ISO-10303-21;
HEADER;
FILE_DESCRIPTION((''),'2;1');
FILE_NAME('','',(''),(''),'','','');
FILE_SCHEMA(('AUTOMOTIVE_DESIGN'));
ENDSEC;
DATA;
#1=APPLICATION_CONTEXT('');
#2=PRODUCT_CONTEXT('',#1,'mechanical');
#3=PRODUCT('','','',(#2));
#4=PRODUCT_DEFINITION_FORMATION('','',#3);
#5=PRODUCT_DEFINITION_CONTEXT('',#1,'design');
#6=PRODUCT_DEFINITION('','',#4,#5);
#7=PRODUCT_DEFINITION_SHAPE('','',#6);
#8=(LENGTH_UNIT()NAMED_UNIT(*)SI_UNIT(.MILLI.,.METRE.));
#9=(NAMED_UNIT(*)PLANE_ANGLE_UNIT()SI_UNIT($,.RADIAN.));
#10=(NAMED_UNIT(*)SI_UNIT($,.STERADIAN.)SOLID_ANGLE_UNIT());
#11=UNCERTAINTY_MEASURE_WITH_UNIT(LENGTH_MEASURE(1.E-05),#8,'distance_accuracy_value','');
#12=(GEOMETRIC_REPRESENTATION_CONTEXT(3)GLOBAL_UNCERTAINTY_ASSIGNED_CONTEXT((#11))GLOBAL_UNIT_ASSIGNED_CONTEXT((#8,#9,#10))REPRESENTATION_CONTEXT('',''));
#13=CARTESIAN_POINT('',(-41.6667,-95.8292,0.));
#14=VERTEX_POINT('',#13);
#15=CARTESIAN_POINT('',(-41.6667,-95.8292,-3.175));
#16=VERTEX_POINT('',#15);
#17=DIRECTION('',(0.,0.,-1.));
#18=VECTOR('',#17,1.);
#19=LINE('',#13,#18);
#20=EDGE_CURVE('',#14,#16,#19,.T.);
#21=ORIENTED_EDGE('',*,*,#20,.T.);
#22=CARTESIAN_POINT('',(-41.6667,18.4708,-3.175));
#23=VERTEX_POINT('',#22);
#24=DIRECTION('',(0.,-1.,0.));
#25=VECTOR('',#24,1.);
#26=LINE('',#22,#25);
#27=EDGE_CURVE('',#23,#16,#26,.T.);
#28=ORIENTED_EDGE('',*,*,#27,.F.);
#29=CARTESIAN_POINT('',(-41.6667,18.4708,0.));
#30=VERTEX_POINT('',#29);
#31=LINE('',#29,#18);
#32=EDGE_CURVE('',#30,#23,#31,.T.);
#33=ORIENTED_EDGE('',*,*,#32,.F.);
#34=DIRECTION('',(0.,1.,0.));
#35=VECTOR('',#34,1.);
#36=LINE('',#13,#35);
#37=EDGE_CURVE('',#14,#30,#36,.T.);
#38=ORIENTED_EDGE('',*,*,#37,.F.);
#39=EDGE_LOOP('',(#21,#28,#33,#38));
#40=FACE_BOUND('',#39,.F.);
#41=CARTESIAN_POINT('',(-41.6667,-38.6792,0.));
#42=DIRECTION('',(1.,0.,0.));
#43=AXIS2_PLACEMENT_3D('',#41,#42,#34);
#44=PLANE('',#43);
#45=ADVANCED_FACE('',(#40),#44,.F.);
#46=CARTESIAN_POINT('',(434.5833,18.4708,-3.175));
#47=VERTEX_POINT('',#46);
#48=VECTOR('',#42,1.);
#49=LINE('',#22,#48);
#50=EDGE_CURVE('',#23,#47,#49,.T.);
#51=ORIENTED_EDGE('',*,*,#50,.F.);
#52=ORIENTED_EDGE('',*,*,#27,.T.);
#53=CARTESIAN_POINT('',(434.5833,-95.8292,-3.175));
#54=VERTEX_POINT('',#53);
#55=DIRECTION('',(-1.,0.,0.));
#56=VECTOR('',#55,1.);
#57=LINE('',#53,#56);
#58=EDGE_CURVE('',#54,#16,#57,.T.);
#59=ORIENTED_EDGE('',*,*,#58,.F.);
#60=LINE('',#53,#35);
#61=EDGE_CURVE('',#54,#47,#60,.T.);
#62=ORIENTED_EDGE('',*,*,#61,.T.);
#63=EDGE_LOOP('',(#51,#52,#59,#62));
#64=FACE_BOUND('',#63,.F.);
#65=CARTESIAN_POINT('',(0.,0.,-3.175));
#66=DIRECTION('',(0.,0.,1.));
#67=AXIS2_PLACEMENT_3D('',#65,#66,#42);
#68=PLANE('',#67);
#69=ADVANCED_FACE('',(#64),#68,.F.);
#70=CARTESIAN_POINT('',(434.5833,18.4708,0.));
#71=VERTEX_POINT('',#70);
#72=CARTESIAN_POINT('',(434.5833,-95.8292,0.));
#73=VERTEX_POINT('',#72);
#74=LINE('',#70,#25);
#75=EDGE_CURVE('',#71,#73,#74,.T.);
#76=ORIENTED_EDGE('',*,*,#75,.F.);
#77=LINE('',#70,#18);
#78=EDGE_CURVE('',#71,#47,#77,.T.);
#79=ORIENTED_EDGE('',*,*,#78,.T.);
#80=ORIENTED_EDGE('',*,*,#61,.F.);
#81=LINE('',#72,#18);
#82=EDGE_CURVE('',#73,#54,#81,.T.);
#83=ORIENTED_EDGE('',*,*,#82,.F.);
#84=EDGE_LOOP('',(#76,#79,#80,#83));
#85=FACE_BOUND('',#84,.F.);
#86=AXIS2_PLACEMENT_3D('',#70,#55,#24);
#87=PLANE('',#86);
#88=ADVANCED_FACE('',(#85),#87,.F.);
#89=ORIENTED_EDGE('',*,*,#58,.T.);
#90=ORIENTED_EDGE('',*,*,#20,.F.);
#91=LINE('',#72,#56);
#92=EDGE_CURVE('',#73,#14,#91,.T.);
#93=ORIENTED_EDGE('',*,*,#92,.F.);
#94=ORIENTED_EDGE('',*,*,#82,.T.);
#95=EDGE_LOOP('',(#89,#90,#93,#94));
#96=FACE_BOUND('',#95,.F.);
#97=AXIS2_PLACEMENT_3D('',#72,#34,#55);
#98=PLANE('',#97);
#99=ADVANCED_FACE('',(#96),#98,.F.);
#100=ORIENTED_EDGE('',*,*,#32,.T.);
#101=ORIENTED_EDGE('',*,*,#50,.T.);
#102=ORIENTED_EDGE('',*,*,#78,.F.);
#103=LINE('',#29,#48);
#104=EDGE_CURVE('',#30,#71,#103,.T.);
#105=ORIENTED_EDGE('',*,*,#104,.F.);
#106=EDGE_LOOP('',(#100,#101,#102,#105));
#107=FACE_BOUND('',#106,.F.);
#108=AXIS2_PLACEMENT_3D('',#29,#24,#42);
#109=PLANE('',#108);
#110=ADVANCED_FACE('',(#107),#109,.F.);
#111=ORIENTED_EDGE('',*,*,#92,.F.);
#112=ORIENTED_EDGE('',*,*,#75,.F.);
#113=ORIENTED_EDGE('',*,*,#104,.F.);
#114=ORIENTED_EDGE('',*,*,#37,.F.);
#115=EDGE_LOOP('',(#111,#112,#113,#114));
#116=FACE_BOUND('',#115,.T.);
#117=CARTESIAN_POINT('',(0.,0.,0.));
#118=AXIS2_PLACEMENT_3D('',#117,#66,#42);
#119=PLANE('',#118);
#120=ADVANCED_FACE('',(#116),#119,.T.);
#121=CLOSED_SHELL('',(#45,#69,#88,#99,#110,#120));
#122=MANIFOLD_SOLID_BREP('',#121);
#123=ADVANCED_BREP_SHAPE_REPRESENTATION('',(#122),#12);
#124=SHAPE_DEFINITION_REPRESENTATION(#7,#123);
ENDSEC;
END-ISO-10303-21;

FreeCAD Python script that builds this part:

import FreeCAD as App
import Part
import Sketcher
Q = App.Units.Quantity

doc = App.newDocument("Part")
body = doc.addObject("PartDesign::Body", "Body")

# Sketch on XY plane
sketch1 = body.newObject("Sketcher::SketchObject", "Sketch")
sketch1.AttachmentSupport = (doc.getObject("XY_Plane"), [""])
sketch1.MapMode = "FlatFace"
sketch1.addGeometry(Part.LineSegment(App.Vector(434.5833, 18.4708, 0), App.Vector(-41.6667, 18.4708, 0)), False)
sketch1.addGeometry(Part.LineSegment(App.Vector(-41.6667, 18.4708, 0), App.Vector(-41.6667, -95.8292, 0)), False)
sketch1.addGeometry(Part.LineSegment(App.Vector(-41.6667, -95.8292, 0), App.Vector(434.5833, -95.8292, 0)), False)
sketch1.addGeometry(Part.LineSegment(App.Vector(434.5833, -95.8292, 0), App.Vector(434.5833, 18.4708, 0)), False)
sketch1.addConstraint(Sketcher.Constraint("Coincident", 0, 2, 1, 1))
sketch1.addConstraint(Sketcher.Constraint("Coincident", 1, 2, 2, 1))
sketch1.addConstraint(Sketcher.Constraint("Coincident", 2, 2, 3, 1))
sketch1.addConstraint(Sketcher.Constraint("Coincident", 3, 2, 0, 1))
sketch1.addConstraint(Sketcher.Constraint("Horizontal", 0))
sketch1.addConstraint(Sketcher.Constraint("Vertical", 1))
sketch1.addConstraint(Sketcher.Constraint("Horizontal", 2))
sketch1.addConstraint(Sketcher.Constraint("Vertical", 3))
sketch1.addConstraint(Sketcher.Constraint("DistanceY", 1, 2, 1, 1, Q("4.5 in")))
sketch1.addConstraint(Sketcher.Constraint("DistanceX", 0, 2, 0, 1, Q("18.75 in")))
sketch1.addConstraint(Sketcher.Constraint("DistanceY", -1, 1, 0, 2, Q("0.7272 in")))
sketch1.addConstraint(Sketcher.Constraint("DistanceX", 0, 2, -1, 1, Q("41.6667 mm")))
pad1 = body.newObject("PartDesign::Pad", "Pad")
pad1.Profile = sketch1
pad1.Length = Q("0.125 in")
pad1.Reversed = True

doc.recompute()
